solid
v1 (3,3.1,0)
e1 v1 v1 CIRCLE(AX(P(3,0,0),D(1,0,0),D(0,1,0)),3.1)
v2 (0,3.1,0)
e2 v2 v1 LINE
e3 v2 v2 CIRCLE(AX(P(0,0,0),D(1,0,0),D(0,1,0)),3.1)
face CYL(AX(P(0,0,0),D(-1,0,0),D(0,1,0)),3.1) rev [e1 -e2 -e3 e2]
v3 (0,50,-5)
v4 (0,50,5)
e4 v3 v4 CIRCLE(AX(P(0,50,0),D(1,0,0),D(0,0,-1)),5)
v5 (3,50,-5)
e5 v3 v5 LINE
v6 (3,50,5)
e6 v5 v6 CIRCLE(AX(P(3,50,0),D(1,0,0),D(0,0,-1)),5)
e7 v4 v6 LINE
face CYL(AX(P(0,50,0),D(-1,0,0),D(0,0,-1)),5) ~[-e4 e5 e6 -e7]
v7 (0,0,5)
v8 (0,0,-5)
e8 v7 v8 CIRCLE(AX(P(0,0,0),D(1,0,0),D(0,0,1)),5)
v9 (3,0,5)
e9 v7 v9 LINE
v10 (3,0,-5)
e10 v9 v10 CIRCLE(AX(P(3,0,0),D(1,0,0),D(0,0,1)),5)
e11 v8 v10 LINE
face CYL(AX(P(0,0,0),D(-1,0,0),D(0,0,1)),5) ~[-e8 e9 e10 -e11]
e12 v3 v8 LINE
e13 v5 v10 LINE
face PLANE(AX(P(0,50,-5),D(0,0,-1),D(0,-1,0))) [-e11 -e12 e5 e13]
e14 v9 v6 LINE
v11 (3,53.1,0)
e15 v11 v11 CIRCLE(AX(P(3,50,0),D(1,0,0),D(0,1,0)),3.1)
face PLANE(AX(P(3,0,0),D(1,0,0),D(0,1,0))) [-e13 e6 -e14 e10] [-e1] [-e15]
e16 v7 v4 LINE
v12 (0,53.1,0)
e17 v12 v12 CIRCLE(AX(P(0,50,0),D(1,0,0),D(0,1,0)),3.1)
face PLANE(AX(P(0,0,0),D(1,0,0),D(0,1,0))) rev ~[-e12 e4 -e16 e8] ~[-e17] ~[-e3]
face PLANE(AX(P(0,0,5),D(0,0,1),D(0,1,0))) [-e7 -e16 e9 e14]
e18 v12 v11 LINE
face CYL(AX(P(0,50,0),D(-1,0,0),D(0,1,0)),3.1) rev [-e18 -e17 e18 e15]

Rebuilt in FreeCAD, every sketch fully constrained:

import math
import FreeCAD as App
import Part
import Sketcher

V = App.Vector
Q = App.Units.Quantity

doc = App.newDocument("Part")
body = doc.addObject("PartDesign::Body", "Body")

sketch1 = body.newObject("Sketcher::SketchObject", "Sketch")
sketch1.AttachmentSupport = (doc.getObject("YZ_Plane"), [""])
sketch1.MapMode = "FlatFace"
sketch1.addGeometry(Part.LineSegment(V(50, 5, 0), V(0, 5, 0)), False)
sketch1.addGeometry(Part.ArcOfCircle(Part.Circle(V(0, 0, 0), V(0, 0, 1), 5), math.radians(90), math.radians(270)), False)
sketch1.addGeometry(Part.LineSegment(V(0, -5, 0), V(50, -5, 0)), False)
sketch1.addGeometry(Part.ArcOfCircle(Part.Circle(V(50, 0, 0), V(0, 0, 1), 5), math.radians(-90), math.radians(90)), False)
sketch1.addGeometry(Part.Circle(V(0, 0, 0), V(0, 0, 1), 3.1), False)
sketch1.addGeometry(Part.Circle(V(50, 0, 0), V(0, 0, 1), 3.1), False)
sketch1.addConstraint(Sketcher.Constraint("Tangent", 0, 2, 1, 1))
sketch1.addConstraint(Sketcher.Constraint("Tangent", 1, 2, 2, 1))
sketch1.addConstraint(Sketcher.Constraint("Tangent", 2, 2, 3, 1))
sketch1.addConstraint(Sketcher.Constraint("Tangent", 3, 2, 0, 1))
sketch1.addConstraint(Sketcher.Constraint("Horizontal", 0))
sketch1.addConstraint(Sketcher.Constraint("Horizontal", 2))
sketch1.addConstraint(Sketcher.Constraint("Coincident", 1, 3, -1, 1))
sketch1.addConstraint(Sketcher.Constraint("Coincident", 4, 3, -1, 1))
sketch1.addConstraint(Sketcher.Constraint("Coincident", 5, 3, 3, 3))
sketch1.addConstraint(Sketcher.Constraint("Equal", 4, 5))
sketch1.addConstraint(Sketcher.Constraint("Radius", 1, Q("5 mm")))
sketch1.addConstraint(Sketcher.Constraint("Diameter", 4, Q("6.2 mm")))
sketch1.addConstraint(Sketcher.Constraint("DistanceX", 0, 2, 0, 1, Q("50 mm")))
pad1 = body.newObject("PartDesign::Pad", "Pad")
pad1.Profile = sketch1
pad1.Length = 3

doc.recompute()
